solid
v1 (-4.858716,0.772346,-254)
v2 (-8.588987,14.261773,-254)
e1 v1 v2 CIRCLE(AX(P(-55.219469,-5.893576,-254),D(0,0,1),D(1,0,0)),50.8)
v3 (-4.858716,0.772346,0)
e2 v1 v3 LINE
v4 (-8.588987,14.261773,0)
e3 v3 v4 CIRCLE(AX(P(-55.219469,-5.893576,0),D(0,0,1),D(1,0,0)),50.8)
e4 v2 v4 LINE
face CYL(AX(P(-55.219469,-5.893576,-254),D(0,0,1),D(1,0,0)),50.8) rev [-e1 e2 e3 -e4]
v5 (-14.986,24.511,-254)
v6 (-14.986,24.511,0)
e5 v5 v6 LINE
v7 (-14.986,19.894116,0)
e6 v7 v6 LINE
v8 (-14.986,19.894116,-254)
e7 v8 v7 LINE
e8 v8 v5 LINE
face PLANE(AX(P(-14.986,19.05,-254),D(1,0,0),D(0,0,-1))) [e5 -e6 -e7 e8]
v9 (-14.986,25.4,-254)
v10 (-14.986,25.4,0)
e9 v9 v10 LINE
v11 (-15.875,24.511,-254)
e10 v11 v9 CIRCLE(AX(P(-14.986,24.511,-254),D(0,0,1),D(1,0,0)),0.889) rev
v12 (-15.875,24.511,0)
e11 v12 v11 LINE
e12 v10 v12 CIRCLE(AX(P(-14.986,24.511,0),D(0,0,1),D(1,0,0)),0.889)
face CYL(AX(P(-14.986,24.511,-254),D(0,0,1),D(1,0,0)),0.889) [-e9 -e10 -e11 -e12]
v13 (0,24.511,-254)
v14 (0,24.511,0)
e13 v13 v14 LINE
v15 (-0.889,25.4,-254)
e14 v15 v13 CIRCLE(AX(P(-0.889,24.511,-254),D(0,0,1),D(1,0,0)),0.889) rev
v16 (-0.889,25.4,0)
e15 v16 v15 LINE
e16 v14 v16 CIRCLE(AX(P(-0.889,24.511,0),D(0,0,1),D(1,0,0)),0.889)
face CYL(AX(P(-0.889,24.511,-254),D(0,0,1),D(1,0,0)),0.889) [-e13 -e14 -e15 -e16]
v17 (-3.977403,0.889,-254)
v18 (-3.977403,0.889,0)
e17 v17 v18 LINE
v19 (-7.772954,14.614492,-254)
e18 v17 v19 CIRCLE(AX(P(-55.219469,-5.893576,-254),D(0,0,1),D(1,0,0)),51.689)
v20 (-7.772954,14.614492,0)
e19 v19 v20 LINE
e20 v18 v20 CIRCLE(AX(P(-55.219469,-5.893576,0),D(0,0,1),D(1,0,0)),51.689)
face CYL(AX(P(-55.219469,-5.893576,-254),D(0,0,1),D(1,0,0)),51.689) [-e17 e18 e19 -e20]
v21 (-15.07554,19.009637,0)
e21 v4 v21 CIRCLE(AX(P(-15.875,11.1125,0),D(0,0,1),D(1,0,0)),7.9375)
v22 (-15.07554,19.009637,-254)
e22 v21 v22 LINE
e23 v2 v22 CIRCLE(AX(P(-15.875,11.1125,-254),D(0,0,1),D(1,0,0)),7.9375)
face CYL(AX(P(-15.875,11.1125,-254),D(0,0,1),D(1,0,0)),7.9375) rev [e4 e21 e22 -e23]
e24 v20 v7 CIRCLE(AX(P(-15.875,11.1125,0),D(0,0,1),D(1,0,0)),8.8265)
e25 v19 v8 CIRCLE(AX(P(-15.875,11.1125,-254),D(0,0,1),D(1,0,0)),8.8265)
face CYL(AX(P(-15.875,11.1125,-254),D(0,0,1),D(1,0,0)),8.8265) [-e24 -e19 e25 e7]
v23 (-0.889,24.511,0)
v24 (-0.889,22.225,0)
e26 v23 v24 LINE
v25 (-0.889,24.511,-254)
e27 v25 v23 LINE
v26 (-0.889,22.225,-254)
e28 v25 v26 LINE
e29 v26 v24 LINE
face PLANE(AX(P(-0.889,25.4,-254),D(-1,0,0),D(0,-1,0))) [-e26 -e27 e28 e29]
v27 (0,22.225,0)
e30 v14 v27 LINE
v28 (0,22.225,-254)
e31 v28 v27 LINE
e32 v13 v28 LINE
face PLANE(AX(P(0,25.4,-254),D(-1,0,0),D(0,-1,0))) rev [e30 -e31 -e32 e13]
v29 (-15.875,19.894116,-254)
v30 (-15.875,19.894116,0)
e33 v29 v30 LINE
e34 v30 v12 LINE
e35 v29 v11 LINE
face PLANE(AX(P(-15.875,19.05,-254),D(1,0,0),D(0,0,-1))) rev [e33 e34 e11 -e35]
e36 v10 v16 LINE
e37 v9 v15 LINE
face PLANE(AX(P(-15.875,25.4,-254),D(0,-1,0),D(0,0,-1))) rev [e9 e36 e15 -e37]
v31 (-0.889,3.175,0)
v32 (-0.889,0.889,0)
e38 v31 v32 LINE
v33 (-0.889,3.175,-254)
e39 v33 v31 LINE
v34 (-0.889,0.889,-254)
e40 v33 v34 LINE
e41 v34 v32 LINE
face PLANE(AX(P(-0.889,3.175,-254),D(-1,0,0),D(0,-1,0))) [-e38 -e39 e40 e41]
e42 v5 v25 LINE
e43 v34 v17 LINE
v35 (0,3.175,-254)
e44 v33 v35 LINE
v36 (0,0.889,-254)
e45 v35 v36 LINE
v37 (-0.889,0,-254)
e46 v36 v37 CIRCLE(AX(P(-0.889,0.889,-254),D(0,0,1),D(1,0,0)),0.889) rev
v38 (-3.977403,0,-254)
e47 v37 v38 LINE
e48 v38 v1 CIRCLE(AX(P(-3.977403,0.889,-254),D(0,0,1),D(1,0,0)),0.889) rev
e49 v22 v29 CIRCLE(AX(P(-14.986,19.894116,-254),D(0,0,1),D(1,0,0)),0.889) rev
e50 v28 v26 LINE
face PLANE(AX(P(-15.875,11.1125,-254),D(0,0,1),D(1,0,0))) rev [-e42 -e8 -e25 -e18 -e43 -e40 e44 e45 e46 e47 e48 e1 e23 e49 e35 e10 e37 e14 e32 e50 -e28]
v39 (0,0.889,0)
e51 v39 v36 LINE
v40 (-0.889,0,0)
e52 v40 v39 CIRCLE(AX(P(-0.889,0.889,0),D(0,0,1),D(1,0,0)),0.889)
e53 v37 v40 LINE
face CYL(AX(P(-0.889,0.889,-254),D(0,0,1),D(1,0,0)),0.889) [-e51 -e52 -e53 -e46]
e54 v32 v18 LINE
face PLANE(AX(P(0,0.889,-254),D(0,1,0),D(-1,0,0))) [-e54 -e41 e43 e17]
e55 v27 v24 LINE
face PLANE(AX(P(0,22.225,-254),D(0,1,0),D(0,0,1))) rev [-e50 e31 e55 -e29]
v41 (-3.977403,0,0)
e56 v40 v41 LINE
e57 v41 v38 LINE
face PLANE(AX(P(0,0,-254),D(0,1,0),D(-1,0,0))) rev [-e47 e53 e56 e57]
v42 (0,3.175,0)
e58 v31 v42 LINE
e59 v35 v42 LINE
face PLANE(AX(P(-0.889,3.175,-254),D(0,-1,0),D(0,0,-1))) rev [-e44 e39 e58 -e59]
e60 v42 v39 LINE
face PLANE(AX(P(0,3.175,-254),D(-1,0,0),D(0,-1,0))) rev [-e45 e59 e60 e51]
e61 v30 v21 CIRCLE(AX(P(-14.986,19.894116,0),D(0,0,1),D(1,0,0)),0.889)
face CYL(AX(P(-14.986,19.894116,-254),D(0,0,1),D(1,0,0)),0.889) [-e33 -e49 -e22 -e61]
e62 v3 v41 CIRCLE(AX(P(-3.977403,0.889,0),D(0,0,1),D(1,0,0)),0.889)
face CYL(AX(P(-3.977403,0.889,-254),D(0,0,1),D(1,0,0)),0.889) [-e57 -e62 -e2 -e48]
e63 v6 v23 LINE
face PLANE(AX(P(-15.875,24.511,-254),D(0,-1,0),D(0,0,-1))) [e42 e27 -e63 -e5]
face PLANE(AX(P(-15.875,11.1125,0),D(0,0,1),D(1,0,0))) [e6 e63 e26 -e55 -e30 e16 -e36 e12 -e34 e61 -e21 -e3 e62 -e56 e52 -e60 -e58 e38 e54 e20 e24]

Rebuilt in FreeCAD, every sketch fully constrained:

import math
import FreeCAD as App
import Part
import Sketcher
Q = App.Units.Quantity


def edges_at(feature, points):
    """Names of the edges that pass closest to the given points."""
    edges = feature.Shape.Edges
    near = lambda p: min(range(len(edges)), key=lambda i: edges[i].distToShape(Part.Vertex(*p))[0])
    return sorted({f"Edge{near(p) + 1}" for p in points})

doc = App.newDocument("Part")
body = doc.addObject("PartDesign::Body", "Body")

# Sketch on XY plane
sketch1 = body.newObject("Sketcher::SketchObject", "Sketch")
sketch1.AttachmentSupport = (doc.getObject("XY_Plane"), [""])
sketch1.MapMode = "FlatFace"
sketch1.addGeometry(Part.LineSegment(App.Vector(0, 0, 0), App.Vector(0, 3.2, 0)), False)
sketch1.addGeometry(Part.LineSegment(App.Vector(0, 3.2, 0), App.Vector(-0.9, 3.2, 0)), False)
sketch1.addGeometry(Part.LineSegment(App.Vector(-0.9, 3.2, 0), App.Vector(-0.9, 0.9, 0)), False)
sketch1.addGeometry(Part.LineSegment(App.Vector(-0.9, 0.9, 0), App.Vector(-4, 0.9, 0)), False)
sketch1.addGeometry(Part.ArcOfCircle(Part.Circle(App.Vector(-55.2, -5.9, 0), App.Vector(0, 0, 1), 51.7), math.radians(7.54), math.radians(23.38)), False)
sketch1.addGeometry(Part.ArcOfCircle(Part.Circle(App.Vector(-15.9, 11.1, 0), App.Vector(0, 0, 1), 8.8), math.radians(23), math.radians(84)), False)
sketch1.addGeometry(Part.LineSegment(App.Vector(-15, 19.9, 0), App.Vector(-15, 24.5, 0)), False)
sketch1.addGeometry(Part.LineSegment(App.Vector(-15, 24.5, 0), App.Vector(-0.9, 24.5, 0)), False)
sketch1.addGeometry(Part.LineSegment(App.Vector(-0.9, 24.5, 0), App.Vector(-0.9, 22.2, 0)), False)
sketch1.addGeometry(Part.LineSegment(App.Vector(-0.9, 22.2, 0), App.Vector(0, 22.2, 0)), False)
sketch1.addGeometry(Part.LineSegment(App.Vector(0, 22.2, 0), App.Vector(0, 25.4, 0)), False)
sketch1.addGeometry(Part.LineSegment(App.Vector(0, 25.4, 0), App.Vector(-15.9, 25.4, 0)), False)
sketch1.addGeometry(Part.LineSegment(App.Vector(-15.9, 25.4, 0), App.Vector(-15.9, 19.1, 0)), False)
sketch1.addGeometry(Part.ArcOfCircle(Part.Circle(App.Vector(-15.9, 11.1, 0), App.Vector(0, 0, 1), 7.9), math.radians(23), math.radians(90)), False)
sketch1.addGeometry(Part.ArcOfCircle(Part.Circle(App.Vector(-55.2, -5.9, 0), App.Vector(0, 0, 1), 50.8), math.radians(6.66), math.radians(23.38)), False)
sketch1.addGeometry(Part.LineSegment(App.Vector(-4.8, 0, 0), App.Vector(0, 0, 0)), False)
sketch1.addConstraint(Sketcher.Constraint("Coincident", 0, 2, 1, 1))
sketch1.addConstraint(Sketcher.Constraint("Coincident", 1, 2, 2, 1))
sketch1.addConstraint(Sketcher.Constraint("Coincident", 2, 2, 3, 1))
sketch1.addConstraint(Sketcher.Constraint("Coincident", 3, 2, 4, 1))
sketch1.addConstraint(Sketcher.Constraint("Tangent", 4, 2, 5, 1))
sketch1.addConstraint(Sketcher.Constraint("Coincident", 5, 2, 6, 1))
sketch1.addConstraint(Sketcher.Constraint("Coincident", 6, 2, 7, 1))
sketch1.addConstraint(Sketcher.Constraint("Coincident", 7, 2, 8, 1))
sketch1.addConstraint(Sketcher.Constraint("Coincident", 8, 2, 9, 1))
sketch1.addConstraint(Sketcher.Constraint("Coincident", 9, 2, 10, 1))
sketch1.addConstraint(Sketcher.Constraint("Coincident", 10, 2, 11, 1))
sketch1.addConstraint(Sketcher.Constraint("Coincident", 11, 2, 12, 1))
sketch1.addConstraint(Sketcher.Constraint("Coincident", 12, 2, 13, 2))
sketch1.addConstraint(Sketcher.Constraint("Tangent", 13, 1, 14, 2))
sketch1.addConstraint(Sketcher.Constraint("Coincident", 14, 1, 15, 1))
sketch1.addConstraint(Sketcher.Constraint("Coincident", 15, 2, 0, 1))
sketch1.addConstraint(Sketcher.Constraint("Vertical", 0))
sketch1.addConstraint(Sketcher.Constraint("Horizontal", 1))
sketch1.addConstraint(Sketcher.Constraint("Vertical", 2))
sketch1.addConstraint(Sketcher.Constraint("Horizontal", 3))
sketch1.addConstraint(Sketcher.Constraint("Vertical", 6))
sketch1.addConstraint(Sketcher.Constraint("Horizontal", 7))
sketch1.addConstraint(Sketcher.Constraint("Vertical", 8))
sketch1.addConstraint(Sketcher.Constraint("Horizontal", 9))
sketch1.addConstraint(Sketcher.Constraint("Vertical", 10))
sketch1.addConstraint(Sketcher.Constraint("Horizontal", 11))
sketch1.addConstraint(Sketcher.Constraint("Vertical", 12))
sketch1.addConstraint(Sketcher.Constraint("Horizontal", 15))
sketch1.addConstraint(Sketcher.Constraint("Coincident", 15, 2, -1, 1))
sketch1.addConstraint(Sketcher.Constraint("Coincident", 13, 3, 5, 3))
sketch1.addConstraint(Sketcher.Constraint("Coincident", 14, 3, 4, 3))
sketch1.addConstraint(Sketcher.Constraint("PointOnObject", 9, 2, -2))
sketch1.addConstraint(Sketcher.Constraint("Vertical", 2, 2, 7, 2))
sketch1.addConstraint(Sketcher.Constraint("Vertical", 13, 3, 11, 2))
sketch1.addConstraint(Sketcher.Constraint("Equal", 2, 8))
sketch1.addConstraint(Sketcher.Constraint("Equal", 0, 10))
sketch1.addConstraint(Sketcher.Constraint("Radius", 14, Q("2 in")))
sketch1.addConstraint(Sketcher.Constraint("DistanceY", -1, 1, 10, 2, Q("1 in")))
sketch1.addConstraint(Sketcher.Constraint("Radius", 4, Q("2.035 in")))
sketch1.addConstraint(Sketcher.Constraint("Radius", 13, Q("0.3125 in")))
sketch1.addConstraint(Sketcher.Constraint("DistanceY", 2, 2, 2, 1, Q("0.09 in")))
sketch1.addConstraint(Sketcher.Constraint("DistanceY", 12, 2, 12, 1, Q("0.25 in")))
sketch1.addConstraint(Sketcher.Constraint("DistanceX", 1, 2, 1, 1, Q("0.035 in")))
sketch1.addConstraint(Sketcher.Constraint("DistanceX", 7, 1, 7, 2, Q("0.555 in")))
sketch1.addConstraint(Sketcher.Constraint("DistanceX", 11, 2, 11, 1, Q("0.625 in")))
sketch1.addConstraint(Sketcher.Constraint("DistanceX", 15, 1, 15, 2, Q("0.1875 in")))
sketch1.addConstraint(Sketcher.Constraint("DistanceY", 0, 1, 0, 2, Q("0.125 in")))
pad1 = body.newObject("PartDesign::Pad", "Pad")
pad1.Profile = sketch1
pad1.Length = Q("10 in")
pad1.Reversed = True
doc.recompute()

fillet = body.newObject("PartDesign::Fillet", "Fillet")
fillet.Base = (pad1, edges_at(pad1, [
    (0, 0, -127),
    (-4.763, 0, -127),
    (-15.875, 19.05, -127),
    (-15.875, 25.4, -127),
    (0, 25.4, -127),
]))
fillet.Radius = Q("0.035 in")

doc.recompute()
